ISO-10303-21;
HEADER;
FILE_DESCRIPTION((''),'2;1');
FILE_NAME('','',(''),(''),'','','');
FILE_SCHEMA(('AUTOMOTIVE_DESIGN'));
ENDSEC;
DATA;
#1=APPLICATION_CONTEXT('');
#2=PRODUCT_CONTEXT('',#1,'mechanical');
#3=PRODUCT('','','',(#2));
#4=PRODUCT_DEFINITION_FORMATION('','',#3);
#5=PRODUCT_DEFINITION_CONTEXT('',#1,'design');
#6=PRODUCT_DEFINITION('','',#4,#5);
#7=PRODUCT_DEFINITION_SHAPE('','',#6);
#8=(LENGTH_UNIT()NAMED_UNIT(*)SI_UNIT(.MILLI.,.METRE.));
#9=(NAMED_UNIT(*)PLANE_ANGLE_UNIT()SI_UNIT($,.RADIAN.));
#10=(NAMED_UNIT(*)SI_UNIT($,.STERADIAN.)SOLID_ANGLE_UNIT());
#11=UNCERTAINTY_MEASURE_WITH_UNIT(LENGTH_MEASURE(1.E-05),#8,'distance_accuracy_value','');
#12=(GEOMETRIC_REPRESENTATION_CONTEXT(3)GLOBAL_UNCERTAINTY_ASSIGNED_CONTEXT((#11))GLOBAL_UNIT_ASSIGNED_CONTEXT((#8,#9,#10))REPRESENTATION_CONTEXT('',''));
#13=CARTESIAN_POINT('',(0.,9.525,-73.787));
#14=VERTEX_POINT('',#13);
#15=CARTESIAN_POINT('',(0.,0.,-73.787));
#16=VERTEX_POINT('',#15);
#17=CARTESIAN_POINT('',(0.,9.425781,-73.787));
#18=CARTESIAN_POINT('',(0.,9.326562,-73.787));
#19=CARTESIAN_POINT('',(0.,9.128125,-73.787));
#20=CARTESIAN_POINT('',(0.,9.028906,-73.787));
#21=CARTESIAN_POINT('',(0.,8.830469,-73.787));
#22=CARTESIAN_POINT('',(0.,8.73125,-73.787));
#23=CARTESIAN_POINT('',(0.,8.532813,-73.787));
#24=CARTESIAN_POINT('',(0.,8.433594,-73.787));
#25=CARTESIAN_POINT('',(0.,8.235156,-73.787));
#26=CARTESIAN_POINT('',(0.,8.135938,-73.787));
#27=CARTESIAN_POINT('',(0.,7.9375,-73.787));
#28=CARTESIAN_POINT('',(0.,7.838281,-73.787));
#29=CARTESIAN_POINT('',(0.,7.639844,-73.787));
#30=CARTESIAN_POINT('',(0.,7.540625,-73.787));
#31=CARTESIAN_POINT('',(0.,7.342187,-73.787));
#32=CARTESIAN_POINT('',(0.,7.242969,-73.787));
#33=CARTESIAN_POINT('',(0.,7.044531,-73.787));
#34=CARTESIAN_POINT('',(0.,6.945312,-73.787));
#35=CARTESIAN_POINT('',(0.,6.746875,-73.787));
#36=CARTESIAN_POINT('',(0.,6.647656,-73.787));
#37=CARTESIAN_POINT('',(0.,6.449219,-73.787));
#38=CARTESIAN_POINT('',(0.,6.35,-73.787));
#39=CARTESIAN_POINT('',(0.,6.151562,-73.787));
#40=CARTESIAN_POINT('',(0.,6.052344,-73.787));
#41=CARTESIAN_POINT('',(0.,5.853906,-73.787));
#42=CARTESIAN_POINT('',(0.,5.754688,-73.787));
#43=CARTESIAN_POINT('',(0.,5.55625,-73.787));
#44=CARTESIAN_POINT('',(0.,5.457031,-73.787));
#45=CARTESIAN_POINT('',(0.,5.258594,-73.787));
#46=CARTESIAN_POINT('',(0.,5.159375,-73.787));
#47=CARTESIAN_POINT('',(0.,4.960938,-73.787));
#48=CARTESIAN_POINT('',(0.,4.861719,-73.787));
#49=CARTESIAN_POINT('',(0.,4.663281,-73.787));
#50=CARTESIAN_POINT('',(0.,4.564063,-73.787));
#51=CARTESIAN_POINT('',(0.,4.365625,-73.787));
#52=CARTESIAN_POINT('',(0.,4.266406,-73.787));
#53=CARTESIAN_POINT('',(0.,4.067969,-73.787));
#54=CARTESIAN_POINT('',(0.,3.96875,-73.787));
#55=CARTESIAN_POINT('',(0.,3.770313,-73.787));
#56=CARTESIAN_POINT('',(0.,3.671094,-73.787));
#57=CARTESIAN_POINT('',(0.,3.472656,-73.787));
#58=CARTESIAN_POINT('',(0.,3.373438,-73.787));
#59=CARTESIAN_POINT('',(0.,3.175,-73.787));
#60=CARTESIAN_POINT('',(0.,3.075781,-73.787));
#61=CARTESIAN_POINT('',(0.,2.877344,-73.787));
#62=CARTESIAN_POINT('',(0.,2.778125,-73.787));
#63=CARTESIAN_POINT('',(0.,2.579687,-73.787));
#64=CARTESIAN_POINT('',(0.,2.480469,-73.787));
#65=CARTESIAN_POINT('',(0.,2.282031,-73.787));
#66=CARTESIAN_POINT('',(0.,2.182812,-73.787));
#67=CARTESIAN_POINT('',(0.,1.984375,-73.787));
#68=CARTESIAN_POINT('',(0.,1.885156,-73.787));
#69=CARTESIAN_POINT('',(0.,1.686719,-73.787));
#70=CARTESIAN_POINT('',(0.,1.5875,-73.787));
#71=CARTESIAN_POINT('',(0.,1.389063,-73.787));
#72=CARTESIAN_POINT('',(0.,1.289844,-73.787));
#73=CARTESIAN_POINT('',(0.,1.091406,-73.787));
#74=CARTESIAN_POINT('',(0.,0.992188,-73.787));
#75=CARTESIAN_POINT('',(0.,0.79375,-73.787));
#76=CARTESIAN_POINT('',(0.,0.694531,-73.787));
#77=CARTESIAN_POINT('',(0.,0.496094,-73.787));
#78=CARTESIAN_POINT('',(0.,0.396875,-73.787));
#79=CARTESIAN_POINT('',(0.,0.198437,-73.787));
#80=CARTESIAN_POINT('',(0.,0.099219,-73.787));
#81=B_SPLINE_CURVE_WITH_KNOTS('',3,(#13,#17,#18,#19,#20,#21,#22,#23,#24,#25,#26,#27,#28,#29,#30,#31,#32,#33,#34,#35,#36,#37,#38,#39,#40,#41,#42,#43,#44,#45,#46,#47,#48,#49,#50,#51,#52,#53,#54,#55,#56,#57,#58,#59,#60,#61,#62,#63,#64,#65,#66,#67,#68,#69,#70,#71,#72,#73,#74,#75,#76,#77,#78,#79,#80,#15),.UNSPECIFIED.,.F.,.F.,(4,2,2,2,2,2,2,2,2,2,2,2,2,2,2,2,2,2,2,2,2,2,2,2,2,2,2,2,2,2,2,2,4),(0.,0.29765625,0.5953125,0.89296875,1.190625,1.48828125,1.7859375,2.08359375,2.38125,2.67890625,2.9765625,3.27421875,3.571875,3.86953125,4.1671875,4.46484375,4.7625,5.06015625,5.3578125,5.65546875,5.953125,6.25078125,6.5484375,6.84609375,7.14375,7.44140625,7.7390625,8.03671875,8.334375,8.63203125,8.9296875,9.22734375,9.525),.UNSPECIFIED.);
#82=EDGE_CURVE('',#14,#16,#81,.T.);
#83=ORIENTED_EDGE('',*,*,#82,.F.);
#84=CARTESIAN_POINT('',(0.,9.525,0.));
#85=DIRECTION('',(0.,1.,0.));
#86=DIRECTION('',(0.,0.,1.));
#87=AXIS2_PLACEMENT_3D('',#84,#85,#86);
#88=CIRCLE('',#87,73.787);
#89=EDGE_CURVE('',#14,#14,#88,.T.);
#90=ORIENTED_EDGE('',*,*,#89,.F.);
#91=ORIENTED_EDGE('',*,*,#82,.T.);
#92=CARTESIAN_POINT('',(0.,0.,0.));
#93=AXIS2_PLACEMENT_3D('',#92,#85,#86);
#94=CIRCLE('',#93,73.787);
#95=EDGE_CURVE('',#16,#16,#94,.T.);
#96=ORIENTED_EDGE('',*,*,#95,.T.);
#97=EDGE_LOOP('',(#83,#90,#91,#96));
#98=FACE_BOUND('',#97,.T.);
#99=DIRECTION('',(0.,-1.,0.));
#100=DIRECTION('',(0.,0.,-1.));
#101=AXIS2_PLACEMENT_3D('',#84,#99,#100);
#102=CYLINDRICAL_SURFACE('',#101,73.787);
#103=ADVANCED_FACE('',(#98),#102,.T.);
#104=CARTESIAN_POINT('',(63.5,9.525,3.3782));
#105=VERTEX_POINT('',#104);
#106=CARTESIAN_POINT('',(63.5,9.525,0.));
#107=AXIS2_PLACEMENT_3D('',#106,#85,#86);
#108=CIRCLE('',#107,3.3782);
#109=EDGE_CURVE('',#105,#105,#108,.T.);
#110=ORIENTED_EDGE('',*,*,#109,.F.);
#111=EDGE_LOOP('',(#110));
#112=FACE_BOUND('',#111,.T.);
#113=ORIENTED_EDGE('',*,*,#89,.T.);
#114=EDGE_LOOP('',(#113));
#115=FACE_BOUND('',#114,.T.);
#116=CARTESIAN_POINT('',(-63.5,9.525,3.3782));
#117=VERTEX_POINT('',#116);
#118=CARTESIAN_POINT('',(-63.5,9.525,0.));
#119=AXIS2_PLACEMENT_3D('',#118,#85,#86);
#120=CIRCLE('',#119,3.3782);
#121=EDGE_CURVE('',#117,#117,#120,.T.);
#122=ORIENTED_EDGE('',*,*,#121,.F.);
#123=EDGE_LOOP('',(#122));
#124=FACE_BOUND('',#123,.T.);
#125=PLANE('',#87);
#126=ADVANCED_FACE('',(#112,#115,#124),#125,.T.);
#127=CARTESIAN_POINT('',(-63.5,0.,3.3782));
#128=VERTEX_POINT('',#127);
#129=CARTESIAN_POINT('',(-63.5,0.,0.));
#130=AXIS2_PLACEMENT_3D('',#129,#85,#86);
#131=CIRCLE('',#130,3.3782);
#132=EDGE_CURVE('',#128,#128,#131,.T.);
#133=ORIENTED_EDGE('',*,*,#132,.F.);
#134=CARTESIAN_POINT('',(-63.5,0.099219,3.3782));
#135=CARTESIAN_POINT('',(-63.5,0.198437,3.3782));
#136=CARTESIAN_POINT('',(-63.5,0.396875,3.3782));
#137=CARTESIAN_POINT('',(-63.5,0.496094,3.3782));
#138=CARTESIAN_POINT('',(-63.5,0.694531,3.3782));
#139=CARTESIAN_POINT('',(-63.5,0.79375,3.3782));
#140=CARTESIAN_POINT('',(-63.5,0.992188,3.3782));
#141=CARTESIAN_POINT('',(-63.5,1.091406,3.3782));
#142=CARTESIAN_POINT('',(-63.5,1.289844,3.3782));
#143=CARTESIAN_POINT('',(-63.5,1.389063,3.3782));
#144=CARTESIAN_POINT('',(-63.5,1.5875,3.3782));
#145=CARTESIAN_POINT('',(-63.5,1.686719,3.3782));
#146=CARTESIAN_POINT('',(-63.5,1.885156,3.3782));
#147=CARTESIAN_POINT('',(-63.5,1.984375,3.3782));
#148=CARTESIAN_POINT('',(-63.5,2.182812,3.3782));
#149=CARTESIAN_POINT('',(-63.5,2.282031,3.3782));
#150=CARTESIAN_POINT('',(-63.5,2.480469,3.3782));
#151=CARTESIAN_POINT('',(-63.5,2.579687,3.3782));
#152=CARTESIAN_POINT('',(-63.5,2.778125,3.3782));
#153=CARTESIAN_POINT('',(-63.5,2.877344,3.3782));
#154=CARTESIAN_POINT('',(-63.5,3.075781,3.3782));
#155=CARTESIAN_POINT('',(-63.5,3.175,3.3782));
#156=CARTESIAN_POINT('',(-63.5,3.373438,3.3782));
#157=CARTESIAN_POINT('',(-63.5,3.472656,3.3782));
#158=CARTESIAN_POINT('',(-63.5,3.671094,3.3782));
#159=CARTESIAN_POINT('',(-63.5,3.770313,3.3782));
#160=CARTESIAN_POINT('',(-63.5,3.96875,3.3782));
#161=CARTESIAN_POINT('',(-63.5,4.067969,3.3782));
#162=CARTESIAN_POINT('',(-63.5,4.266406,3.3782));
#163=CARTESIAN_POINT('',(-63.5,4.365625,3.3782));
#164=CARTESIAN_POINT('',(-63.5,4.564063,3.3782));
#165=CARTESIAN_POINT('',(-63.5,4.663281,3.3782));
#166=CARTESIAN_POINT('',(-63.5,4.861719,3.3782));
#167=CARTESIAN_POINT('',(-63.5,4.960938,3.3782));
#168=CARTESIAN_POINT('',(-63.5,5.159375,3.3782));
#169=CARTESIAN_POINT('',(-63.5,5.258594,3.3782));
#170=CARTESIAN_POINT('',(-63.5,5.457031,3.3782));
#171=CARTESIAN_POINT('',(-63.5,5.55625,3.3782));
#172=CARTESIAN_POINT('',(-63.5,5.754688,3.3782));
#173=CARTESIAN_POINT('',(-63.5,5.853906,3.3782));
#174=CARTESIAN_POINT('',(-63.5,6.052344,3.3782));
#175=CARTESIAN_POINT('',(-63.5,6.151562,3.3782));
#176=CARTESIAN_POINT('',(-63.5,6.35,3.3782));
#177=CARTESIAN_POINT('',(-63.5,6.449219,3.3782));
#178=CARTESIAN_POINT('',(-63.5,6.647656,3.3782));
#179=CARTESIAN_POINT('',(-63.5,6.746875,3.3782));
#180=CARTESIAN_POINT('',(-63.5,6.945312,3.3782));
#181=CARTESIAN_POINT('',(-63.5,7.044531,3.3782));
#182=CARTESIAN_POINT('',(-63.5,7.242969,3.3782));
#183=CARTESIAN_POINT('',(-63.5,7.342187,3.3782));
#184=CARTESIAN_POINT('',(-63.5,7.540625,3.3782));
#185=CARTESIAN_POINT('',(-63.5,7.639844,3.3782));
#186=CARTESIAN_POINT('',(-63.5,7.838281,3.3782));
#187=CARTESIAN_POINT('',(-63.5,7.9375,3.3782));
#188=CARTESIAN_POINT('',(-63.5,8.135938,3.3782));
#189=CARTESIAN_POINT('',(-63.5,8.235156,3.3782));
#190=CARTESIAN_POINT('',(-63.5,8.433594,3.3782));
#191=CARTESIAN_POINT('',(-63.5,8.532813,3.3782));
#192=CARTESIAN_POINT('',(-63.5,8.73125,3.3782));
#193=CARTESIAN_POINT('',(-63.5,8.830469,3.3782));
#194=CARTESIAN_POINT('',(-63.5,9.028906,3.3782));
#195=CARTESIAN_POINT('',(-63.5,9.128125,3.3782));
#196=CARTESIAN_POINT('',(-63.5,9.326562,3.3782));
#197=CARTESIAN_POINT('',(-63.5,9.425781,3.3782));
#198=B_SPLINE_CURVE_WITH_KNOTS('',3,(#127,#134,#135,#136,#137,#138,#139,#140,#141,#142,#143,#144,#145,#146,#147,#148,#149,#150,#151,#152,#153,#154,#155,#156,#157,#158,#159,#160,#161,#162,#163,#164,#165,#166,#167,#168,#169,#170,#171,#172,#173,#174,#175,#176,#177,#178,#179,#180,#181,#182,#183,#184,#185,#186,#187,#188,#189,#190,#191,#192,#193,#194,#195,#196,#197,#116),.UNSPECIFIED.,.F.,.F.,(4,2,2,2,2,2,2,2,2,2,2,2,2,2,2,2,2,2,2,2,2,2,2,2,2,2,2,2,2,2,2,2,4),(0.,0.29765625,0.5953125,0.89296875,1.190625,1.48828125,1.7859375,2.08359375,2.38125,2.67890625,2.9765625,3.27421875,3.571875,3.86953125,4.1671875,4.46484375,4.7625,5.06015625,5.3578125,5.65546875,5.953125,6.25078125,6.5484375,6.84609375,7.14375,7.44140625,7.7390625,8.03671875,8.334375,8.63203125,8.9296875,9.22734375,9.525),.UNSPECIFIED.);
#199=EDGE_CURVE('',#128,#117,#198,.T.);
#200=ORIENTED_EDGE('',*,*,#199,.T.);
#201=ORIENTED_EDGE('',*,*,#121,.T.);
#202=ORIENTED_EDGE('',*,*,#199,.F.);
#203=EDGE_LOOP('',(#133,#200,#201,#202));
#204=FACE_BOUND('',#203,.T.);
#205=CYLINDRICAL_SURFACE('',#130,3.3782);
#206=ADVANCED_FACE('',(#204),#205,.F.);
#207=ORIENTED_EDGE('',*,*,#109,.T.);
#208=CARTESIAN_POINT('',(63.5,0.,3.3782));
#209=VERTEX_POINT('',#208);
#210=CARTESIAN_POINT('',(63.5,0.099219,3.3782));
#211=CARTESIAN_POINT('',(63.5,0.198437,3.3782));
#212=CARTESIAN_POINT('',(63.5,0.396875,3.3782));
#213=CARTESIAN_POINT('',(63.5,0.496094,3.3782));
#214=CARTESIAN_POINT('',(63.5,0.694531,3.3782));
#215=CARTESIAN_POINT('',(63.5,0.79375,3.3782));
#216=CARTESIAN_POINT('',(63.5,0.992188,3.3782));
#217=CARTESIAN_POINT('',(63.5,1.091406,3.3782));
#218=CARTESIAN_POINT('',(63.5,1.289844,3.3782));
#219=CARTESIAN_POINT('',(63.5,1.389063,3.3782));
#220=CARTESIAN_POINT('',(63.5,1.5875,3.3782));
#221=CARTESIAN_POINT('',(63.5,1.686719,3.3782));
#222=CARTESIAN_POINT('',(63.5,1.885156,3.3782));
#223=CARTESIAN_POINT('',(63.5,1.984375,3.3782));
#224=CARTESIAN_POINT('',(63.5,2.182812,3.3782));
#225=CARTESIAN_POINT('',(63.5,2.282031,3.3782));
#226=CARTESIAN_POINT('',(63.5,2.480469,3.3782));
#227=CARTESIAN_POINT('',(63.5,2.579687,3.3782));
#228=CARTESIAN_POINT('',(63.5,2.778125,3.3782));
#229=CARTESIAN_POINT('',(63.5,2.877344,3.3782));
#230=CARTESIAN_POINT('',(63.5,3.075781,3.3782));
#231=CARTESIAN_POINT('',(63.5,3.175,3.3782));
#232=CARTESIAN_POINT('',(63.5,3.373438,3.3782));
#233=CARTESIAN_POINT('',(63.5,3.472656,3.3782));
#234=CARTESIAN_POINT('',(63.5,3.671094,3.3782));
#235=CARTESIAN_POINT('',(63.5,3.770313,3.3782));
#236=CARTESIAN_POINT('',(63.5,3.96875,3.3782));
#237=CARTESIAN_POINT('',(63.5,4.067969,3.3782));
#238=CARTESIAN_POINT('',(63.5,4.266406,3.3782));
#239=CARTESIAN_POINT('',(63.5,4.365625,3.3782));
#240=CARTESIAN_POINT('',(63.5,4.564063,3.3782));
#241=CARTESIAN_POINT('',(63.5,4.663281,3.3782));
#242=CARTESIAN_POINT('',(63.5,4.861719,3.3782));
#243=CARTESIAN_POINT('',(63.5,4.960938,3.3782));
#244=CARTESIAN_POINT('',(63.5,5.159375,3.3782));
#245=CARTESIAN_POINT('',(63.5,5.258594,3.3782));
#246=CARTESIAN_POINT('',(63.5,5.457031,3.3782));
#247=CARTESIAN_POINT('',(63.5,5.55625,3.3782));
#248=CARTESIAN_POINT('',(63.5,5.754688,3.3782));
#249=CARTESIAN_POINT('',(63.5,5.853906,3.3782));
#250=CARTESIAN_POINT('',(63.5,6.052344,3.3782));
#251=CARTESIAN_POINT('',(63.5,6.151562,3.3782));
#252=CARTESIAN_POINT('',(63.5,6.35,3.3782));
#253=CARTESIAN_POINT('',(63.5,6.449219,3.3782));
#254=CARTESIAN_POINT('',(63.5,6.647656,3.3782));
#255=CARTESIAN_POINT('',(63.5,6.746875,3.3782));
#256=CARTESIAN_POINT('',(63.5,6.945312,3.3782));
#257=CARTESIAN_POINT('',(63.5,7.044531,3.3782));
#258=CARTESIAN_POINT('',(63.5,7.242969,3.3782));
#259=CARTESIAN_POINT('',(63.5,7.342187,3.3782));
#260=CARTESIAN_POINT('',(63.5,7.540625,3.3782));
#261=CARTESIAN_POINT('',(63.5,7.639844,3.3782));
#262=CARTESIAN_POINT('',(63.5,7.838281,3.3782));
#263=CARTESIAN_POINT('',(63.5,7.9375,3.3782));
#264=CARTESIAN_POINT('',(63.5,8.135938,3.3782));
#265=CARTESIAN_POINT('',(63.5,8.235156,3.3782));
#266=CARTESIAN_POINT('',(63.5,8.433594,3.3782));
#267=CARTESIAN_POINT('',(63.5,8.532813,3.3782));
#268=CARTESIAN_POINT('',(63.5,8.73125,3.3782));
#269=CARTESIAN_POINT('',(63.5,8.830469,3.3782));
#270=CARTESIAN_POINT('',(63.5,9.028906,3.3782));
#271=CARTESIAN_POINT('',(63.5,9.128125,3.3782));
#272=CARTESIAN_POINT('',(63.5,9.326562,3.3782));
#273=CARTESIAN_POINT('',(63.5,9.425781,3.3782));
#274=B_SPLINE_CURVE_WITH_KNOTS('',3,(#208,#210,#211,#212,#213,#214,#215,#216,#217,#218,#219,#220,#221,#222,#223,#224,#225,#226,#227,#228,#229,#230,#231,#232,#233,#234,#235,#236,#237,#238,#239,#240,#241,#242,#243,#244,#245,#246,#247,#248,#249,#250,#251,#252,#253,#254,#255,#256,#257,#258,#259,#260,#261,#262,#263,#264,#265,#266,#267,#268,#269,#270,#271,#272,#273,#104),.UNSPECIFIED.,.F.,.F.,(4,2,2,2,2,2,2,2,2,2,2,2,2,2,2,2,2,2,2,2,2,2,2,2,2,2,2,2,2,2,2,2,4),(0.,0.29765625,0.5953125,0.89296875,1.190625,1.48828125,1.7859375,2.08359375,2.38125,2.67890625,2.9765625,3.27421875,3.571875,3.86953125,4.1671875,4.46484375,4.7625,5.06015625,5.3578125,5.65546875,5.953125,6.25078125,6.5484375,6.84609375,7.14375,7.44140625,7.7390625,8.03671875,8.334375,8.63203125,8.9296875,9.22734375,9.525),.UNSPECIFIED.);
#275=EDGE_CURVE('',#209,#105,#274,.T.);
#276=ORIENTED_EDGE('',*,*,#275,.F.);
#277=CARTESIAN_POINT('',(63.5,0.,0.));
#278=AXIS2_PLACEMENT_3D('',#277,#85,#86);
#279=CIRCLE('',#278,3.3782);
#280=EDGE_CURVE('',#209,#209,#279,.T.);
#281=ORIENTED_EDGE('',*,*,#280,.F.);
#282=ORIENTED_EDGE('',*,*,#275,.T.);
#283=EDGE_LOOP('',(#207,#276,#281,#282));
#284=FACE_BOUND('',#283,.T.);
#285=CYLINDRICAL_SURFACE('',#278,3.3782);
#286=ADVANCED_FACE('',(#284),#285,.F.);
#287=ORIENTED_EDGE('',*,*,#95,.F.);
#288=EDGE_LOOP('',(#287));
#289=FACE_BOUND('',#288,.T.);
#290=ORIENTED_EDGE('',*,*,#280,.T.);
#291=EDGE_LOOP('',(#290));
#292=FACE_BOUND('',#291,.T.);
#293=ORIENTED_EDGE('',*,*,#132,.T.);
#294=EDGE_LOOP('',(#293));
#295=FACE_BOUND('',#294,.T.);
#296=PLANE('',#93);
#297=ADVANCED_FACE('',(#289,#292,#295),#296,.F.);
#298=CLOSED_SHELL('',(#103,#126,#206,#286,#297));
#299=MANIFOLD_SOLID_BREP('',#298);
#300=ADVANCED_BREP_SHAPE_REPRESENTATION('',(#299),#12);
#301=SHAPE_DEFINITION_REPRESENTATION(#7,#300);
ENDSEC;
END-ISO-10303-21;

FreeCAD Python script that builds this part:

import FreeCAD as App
import Part
import Sketcher
from FreeCAD import Vector
Q = App.Units.Quantity

doc = App.newDocument("Part")
params = doc.addObject("Spreadsheet::Sheet", "Params")
for row, (alias, value) in enumerate([
    ("sketch1_diameter", "5.81 in"),
    ("pad1_length", "0.375 in"),
    ("sketch2_diameter", "0.266 in"),
], start=1):
    params.set(f"A{row}", alias)
    params.set(f"B{row}", "=" + value)
    params.setAlias(f"B{row}", alias)

body = doc.addObject("PartDesign::Body", "Body")

# Sketch on XZ plane
sketch1 = body.newObject("Sketcher::SketchObject", "Sketch")
sketch1.AttachmentSupport = (doc.getObject("XZ_Plane"), [""])
sketch1.MapMode = "FlatFace"
sketch1.addGeometry(Part.Circle(Vector(0, 0, 0), Vector(0, 0, 1), 74), False)
sketch1.addConstraint([
    Sketcher.Constraint("Coincident", 0, 3, -1, 1),
    Sketcher.Constraint("Diameter", 0, Q("5.81 in")),
])
sketch1.setExpression("Constraints[1]", "Params.sketch1_diameter")
pad1 = body.newObject("PartDesign::Pad", "Pad")
pad1.Profile = sketch1
pad1.setExpression("Length", "Params.pad1_length")
pad1.Reversed = True

# Sketch on XZ plane
sketch2 = body.newObject("Sketcher::SketchObject", "Sketch001")
sketch2.AttachmentSupport = (doc.getObject("XZ_Plane"), [""])
sketch2.MapMode = "FlatFace"
sketch2.AttachmentOffset = App.Placement(Vector(0, 0, -0.375 * 25.4), App.Rotation())
sketch2.addGeometry([
    Part.Circle(Vector(-63.5, 0, 0), Vector(0, 0, 1), 3.4),
    Part.Circle(Vector(63.5, 0, 0), Vector(0, 0, 1), 3.4),
], False)
sketch2.addConstraint([
    Sketcher.Constraint("Equal", 0, 1),
    Sketcher.Constraint("Symmetric", 0, 3, 1, 3, -1, 1),
    Sketcher.Constraint("PointOnObject", 0, 3, -1),
    Sketcher.Constraint("Diameter", 0, Q("0.266 in")),
    Sketcher.Constraint("DistanceX", 0, 3, 1, 3, Q("5 in")),
])
sketch2.setExpression("Constraints[3]", "Params.sketch2_diameter")
pocket1 = body.newObject("PartDesign::Pocket", "Pocket")
pocket1.Profile = sketch2
pocket1.Type = "ThroughAll"
pocket1.Reversed = True

doc.recompute()
